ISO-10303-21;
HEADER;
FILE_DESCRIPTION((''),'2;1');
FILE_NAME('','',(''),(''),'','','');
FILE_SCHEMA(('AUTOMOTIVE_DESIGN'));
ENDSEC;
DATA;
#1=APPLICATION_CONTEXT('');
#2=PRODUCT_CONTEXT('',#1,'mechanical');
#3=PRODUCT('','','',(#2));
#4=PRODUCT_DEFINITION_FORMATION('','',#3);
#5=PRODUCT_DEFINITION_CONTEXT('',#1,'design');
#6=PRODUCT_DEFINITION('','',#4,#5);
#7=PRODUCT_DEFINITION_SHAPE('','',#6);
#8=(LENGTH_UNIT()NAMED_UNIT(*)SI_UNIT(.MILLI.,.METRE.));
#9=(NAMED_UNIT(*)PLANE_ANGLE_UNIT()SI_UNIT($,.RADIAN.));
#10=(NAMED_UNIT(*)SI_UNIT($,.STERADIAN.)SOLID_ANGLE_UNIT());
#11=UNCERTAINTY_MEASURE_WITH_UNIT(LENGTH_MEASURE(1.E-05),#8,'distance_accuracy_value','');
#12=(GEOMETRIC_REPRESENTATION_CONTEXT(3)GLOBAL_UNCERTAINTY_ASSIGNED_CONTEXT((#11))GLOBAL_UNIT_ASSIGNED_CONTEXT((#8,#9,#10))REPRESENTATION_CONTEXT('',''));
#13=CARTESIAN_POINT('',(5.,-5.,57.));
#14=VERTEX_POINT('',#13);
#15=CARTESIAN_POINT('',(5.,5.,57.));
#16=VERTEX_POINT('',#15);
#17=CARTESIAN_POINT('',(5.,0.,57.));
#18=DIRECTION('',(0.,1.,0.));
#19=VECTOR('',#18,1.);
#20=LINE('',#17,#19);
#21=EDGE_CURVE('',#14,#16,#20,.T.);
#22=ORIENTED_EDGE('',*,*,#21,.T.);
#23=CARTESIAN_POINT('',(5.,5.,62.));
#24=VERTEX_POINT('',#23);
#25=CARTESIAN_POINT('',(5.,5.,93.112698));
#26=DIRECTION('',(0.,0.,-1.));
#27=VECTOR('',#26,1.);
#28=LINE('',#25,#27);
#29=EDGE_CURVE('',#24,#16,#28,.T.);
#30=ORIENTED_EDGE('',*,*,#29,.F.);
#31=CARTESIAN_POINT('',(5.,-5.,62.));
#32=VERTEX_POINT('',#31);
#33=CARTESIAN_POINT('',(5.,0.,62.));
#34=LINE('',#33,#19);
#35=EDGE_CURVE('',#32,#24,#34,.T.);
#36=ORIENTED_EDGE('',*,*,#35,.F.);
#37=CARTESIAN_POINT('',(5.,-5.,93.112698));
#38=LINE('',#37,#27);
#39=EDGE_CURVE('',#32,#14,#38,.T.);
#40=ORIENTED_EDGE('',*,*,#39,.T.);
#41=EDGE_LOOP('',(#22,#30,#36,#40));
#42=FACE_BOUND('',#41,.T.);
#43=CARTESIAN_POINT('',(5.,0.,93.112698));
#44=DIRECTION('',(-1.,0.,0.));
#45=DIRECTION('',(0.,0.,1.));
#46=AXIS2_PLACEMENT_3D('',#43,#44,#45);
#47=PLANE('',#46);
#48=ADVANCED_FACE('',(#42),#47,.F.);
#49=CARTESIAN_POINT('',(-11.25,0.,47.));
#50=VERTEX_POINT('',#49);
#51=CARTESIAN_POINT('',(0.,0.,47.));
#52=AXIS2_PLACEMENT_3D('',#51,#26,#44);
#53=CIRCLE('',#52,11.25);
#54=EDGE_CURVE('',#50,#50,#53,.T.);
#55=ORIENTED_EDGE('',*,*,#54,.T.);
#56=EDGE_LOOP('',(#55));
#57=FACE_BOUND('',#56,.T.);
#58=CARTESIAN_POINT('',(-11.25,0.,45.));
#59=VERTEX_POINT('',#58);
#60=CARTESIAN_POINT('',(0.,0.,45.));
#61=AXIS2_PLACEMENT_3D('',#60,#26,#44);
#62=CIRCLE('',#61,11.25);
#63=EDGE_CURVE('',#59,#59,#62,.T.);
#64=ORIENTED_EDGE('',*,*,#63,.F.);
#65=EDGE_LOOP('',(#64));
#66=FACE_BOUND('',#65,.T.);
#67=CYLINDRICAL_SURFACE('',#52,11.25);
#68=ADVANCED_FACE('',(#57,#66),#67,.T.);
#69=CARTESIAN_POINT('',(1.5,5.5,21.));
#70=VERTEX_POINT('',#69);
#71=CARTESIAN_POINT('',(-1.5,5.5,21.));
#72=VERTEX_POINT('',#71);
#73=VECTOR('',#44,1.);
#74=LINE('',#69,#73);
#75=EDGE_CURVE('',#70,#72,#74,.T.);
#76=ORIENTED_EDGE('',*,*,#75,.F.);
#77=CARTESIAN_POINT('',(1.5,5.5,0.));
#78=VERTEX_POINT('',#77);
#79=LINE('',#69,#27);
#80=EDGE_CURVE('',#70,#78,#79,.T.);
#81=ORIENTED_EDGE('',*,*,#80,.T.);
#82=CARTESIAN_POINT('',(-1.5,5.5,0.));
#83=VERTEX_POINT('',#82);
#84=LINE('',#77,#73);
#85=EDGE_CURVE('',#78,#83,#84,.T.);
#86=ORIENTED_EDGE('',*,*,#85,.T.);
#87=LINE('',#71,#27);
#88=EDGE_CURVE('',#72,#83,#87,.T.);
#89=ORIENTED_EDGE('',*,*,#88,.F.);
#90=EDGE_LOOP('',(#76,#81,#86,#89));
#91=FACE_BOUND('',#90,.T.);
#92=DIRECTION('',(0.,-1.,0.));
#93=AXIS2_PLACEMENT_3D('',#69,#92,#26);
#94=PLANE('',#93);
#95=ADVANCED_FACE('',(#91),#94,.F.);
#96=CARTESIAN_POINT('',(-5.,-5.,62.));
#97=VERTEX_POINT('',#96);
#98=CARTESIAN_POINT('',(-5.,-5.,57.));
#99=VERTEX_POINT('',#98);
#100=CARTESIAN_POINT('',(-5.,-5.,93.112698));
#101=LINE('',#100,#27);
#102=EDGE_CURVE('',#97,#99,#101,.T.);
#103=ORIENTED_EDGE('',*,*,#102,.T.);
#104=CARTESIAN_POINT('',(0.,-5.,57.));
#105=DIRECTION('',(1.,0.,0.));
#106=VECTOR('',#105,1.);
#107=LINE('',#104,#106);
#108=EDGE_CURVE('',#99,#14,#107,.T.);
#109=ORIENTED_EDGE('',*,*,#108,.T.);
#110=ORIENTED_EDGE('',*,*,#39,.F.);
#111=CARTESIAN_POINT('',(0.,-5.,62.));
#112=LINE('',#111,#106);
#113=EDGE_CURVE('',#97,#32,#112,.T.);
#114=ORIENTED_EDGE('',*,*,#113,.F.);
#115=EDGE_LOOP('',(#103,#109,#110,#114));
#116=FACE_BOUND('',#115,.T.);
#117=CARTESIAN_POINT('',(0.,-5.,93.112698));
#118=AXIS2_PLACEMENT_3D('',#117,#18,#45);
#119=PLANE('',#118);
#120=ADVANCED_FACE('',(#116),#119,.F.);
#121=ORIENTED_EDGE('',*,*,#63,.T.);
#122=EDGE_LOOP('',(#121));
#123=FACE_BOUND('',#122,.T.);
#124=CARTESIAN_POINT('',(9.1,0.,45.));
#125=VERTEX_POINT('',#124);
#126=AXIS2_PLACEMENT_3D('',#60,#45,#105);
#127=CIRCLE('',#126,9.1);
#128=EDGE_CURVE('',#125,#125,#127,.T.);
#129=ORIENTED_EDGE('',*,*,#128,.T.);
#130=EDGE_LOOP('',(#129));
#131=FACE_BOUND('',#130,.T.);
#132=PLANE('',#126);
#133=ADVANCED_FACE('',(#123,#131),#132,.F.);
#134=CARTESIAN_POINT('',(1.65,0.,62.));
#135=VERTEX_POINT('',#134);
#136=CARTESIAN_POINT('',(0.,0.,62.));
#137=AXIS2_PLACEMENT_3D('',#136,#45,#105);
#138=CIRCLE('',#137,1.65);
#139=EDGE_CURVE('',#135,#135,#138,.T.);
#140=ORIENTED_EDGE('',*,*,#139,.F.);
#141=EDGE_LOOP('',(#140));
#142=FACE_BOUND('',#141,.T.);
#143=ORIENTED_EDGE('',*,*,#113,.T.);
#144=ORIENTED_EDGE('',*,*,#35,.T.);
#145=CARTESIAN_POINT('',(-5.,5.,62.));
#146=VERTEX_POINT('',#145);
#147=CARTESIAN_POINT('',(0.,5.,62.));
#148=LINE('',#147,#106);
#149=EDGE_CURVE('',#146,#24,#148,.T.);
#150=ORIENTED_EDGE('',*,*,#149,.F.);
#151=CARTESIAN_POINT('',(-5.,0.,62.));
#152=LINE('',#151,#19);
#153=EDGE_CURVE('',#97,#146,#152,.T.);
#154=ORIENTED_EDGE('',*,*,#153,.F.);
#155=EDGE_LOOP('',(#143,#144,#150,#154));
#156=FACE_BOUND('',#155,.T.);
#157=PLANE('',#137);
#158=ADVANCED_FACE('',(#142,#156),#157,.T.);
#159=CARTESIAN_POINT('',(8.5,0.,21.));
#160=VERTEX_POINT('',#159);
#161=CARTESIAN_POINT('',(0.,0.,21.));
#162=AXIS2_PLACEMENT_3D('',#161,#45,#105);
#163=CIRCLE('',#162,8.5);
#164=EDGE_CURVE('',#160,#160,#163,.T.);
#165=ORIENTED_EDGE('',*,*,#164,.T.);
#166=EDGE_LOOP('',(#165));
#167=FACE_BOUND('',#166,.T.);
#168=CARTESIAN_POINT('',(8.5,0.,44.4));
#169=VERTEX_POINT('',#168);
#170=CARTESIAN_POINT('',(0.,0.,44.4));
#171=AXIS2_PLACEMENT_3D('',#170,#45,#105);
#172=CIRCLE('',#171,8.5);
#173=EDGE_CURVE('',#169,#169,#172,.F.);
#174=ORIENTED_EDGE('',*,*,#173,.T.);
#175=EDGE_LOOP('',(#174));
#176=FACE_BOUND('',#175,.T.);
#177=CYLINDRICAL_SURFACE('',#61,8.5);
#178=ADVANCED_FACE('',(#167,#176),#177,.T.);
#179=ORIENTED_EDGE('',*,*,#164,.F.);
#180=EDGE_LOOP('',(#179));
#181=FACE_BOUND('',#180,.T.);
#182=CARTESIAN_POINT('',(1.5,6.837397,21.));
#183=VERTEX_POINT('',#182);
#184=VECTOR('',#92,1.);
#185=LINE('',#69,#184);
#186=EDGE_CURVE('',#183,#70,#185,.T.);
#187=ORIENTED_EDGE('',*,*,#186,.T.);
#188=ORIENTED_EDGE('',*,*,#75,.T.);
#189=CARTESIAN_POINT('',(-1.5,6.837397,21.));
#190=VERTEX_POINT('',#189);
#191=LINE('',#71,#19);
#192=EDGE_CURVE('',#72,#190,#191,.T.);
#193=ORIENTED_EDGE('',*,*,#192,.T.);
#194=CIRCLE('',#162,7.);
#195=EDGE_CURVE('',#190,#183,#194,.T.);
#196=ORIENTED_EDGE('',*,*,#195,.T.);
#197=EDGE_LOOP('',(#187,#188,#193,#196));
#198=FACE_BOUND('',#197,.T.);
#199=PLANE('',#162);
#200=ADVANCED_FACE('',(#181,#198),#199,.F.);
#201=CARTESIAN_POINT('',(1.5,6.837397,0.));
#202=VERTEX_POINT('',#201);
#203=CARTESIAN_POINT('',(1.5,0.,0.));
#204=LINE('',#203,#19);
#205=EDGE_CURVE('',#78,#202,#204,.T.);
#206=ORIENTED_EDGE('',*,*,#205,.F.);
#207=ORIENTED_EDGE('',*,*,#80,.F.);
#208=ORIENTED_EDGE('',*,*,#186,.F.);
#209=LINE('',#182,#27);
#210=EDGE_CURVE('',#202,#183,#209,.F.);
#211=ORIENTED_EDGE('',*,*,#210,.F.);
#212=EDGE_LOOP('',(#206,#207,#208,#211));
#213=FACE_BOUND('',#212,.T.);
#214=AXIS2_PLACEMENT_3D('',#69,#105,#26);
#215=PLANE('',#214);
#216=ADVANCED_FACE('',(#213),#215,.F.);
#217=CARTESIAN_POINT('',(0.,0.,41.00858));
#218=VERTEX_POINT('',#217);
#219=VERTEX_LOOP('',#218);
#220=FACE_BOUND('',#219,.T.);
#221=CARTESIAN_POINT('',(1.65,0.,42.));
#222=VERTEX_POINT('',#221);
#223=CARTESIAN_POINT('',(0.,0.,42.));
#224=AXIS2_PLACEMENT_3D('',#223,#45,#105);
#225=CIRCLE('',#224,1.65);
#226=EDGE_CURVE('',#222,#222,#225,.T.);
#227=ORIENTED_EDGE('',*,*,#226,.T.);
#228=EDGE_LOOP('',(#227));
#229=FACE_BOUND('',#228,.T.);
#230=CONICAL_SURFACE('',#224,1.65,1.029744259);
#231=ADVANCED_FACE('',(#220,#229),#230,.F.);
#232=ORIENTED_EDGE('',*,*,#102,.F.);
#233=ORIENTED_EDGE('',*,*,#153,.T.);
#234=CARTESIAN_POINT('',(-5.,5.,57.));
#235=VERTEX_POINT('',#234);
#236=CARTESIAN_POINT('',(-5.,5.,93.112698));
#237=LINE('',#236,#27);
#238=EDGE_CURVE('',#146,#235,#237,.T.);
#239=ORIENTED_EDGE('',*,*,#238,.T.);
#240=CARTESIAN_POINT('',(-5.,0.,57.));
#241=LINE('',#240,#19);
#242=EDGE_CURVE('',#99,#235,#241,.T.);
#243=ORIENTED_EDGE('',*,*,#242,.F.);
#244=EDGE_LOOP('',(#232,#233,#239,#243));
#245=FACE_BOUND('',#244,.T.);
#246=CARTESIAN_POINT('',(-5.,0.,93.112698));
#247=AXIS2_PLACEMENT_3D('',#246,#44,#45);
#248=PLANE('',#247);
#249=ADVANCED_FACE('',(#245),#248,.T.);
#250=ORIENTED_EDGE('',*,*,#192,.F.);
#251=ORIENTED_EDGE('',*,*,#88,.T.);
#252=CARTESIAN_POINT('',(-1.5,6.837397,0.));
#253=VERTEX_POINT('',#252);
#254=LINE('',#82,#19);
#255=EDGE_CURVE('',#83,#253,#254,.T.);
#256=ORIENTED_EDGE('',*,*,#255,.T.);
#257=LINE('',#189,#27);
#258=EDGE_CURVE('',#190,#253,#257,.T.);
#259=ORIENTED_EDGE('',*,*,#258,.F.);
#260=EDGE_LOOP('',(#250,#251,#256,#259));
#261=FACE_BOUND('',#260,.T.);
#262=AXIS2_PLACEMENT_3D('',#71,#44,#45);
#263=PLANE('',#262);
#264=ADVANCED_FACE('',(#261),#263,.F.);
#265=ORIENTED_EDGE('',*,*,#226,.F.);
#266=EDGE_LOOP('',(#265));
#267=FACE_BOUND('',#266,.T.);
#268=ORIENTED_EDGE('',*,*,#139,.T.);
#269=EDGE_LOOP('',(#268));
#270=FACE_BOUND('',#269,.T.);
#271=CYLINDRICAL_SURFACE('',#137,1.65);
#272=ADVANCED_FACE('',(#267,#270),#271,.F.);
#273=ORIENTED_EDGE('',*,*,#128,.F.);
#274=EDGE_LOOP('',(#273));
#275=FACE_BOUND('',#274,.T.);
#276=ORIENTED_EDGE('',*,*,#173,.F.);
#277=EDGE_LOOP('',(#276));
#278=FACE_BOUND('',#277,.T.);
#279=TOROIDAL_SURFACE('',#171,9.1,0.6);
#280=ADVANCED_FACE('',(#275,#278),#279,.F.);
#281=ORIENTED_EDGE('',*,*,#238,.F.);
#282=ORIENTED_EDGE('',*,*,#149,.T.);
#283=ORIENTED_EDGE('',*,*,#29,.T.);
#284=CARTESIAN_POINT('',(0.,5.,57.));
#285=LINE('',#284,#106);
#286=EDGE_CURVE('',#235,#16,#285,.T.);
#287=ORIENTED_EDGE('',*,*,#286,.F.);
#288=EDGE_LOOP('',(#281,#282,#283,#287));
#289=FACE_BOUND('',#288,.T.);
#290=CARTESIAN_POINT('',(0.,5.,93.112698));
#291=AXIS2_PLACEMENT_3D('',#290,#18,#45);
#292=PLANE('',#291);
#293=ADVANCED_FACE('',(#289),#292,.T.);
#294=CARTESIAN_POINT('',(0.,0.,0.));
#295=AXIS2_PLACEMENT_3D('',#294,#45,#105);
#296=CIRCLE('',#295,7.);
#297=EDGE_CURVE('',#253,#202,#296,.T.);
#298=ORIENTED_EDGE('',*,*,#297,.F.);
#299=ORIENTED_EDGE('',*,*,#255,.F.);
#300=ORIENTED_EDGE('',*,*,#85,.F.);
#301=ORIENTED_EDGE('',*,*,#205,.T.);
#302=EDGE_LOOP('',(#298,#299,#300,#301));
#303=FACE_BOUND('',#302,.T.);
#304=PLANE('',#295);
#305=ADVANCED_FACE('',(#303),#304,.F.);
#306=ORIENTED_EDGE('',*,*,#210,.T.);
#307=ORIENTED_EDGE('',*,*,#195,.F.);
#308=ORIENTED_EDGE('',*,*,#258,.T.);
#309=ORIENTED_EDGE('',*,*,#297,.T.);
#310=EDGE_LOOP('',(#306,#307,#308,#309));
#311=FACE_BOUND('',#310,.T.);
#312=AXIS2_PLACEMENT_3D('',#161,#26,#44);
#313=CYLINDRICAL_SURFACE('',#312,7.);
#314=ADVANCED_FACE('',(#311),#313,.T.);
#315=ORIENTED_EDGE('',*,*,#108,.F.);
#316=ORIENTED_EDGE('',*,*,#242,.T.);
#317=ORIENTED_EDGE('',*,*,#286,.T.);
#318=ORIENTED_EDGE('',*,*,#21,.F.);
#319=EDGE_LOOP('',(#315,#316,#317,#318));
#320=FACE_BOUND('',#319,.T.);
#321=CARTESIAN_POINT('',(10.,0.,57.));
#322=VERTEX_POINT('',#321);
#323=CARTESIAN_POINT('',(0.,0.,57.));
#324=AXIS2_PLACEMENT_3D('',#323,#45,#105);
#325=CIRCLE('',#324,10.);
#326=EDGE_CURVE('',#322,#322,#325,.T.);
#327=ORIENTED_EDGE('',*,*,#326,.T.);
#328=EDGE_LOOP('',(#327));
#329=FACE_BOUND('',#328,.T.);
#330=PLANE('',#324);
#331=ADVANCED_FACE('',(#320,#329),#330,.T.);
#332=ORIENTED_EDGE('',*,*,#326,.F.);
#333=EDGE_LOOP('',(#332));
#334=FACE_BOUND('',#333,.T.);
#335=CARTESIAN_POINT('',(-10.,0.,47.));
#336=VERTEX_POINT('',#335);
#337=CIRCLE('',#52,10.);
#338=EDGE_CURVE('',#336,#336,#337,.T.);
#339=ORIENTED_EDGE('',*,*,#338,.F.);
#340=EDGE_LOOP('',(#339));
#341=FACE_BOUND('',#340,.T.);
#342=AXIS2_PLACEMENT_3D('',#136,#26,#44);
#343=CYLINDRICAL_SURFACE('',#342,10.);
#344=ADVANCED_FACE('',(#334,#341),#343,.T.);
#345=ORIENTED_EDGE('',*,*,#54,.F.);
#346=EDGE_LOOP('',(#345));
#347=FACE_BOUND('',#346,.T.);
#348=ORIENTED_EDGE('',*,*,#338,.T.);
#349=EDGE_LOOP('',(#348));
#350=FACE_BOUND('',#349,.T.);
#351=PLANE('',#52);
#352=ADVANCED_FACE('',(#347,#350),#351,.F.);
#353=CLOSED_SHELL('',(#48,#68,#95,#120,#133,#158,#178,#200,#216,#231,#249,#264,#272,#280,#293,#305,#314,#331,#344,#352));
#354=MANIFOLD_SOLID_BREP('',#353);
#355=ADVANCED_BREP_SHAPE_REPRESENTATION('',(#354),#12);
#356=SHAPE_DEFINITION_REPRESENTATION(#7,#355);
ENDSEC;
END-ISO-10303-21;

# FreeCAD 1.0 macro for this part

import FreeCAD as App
import Part
import Sketcher

V = App.Vector


def edges_at(feature, points):
    """Names of the edges that pass closest to the given points."""
    edges = feature.Shape.Edges
    near = lambda p: min(range(len(edges)), key=lambda i: edges[i].distToShape(Part.Vertex(*p))[0])
    return sorted({f"Edge{near(p) + 1}" for p in points})


def add_polygon(sketch, points):
    """Adds a closed chain of lines whose ends are joined by coincident constraints."""
    first, n = sketch.GeometryCount, len(points)
    for a, b in zip(points, points[1:] + points[:1]):
        sketch.addGeometry(Part.LineSegment(App.Vector(*a, 0), App.Vector(*b, 0)), False)
    for i in range(n):
        sketch.addConstraint(Sketcher.Constraint("Coincident", first + i, 2, first + (i + 1) % n, 1))

doc = App.newDocument("Part")
body = doc.addObject("PartDesign::Body", "Body")

# Sketch on XY plane
sketch1 = body.newObject("Sketcher::SketchObject", "Sketch")
sketch1.AttachmentSupport = (doc.getObject("XY_Plane"), [""])
sketch1.MapMode = "FlatFace"
sketch1.addGeometry(Part.Circle(V(0, 0, 0), V(0, 0, 1), 7), False)
sketch1.addConstraint([
    Sketcher.Constraint("Coincident", 0, 3, -1, 1),
    Sketcher.Constraint("Diameter", 0, 14.0),
])
pad1 = body.newObject("PartDesign::Pad", "Pad")
pad1.Profile = sketch1
pad1.Length = 21

# Sketch on XY plane
sketch2 = body.newObject("Sketcher::SketchObject", "Sketch001")
sketch2.AttachmentSupport = (doc.getObject("XY_Plane"), [""])
sketch2.MapMode = "FlatFace"
add_polygon(sketch2, [(1.5, 8.5), (1.5, 5.5), (-1.5, 5.5), (-1.5, 8.5)])  # lines 0-3
sketch2.addConstraint([
    Sketcher.Constraint("Vertical", 0),
    Sketcher.Constraint("Horizontal", 1),
    Sketcher.Constraint("Vertical", 2),
    Sketcher.Constraint("Horizontal", 3),
    Sketcher.Constraint("Equal", 3, 0),
    Sketcher.Constraint("DistanceX", 1, 2, 1, 1, 3.0),
    Sketcher.Constraint("DistanceX", -1, 1, 0, 2, 1.5),
    Sketcher.Constraint("DistanceY", -1, 1, 0, 2, 5.5),
])
pocket1 = body.newObject("PartDesign::Pocket", "Pocket")
pocket1.Profile = sketch2
pocket1.Length = 21
pocket1.Reversed = True

# Sketch on XY plane
sketch3 = body.newObject("Sketcher::SketchObject", "Sketch002")
sketch3.AttachmentSupport = (doc.getObject("XY_Plane"), [""])
sketch3.MapMode = "FlatFace"
sketch3.AttachmentOffset = App.Placement(V(0, 0, 21), App.Rotation())
sketch3.addGeometry(Part.Circle(V(0, 0, 0), V(0, 0, 1), 8.5), False)
sketch3.addConstraint([
    Sketcher.Constraint("Coincident", 0, 3, -1, 1),
    Sketcher.Constraint("Diameter", 0, 17.0),
])
pad2 = body.newObject("PartDesign::Pad", "Pad001")
pad2.Profile = sketch3
pad2.Length = 24

# Sketch on XY plane
sketch4 = body.newObject("Sketcher::SketchObject", "Sketch003")
sketch4.AttachmentSupport = (doc.getObject("XY_Plane"), [""])
sketch4.MapMode = "FlatFace"
sketch4.AttachmentOffset = App.Placement(V(0, 0, 45), App.Rotation())
sketch4.addGeometry(Part.Circle(V(0, 0, 0), V(0, 0, 1), 10), False)
sketch4.addConstraint([
    Sketcher.Constraint("Coincident", 0, 3, -1, 1),
    Sketcher.Constraint("Diameter", 0, 20.0),
])
pad3 = body.newObject("PartDesign::Pad", "Pad002")
pad3.Profile = sketch4
pad3.Length = 17
doc.recompute()

fillet = body.newObject("PartDesign::Fillet", "Fillet")
fillet.Base = (pad3, edges_at(pad3, [(-8.5, 0, 45)]))
fillet.Radius = 0.6

# Sketch on XY plane
sketch5 = body.newObject("Sketcher::SketchObject", "Sketch004")
sketch5.AttachmentSupport = (doc.getObject("XY_Plane"), [""])
sketch5.MapMode = "FlatFace"
sketch5.AttachmentOffset = App.Placement(V(0, 0, 45), App.Rotation())
sketch5.addGeometry(Part.Circle(V(0, 0, 0), V(0, 0, 1), 11.25), False)
sketch5.addConstraint([
    Sketcher.Constraint("Coincident", 0, 3, -1, 1),
    Sketcher.Constraint("Diameter", 0, 22.5),
])
pad4 = body.newObject("PartDesign::Pad", "Pad003")
pad4.Profile = sketch5
pad4.Length = 2

# Sketch on XY plane
sketch6 = body.newObject("Sketcher::SketchObject", "Sketch005")
sketch6.AttachmentSupport = (doc.getObject("XY_Plane"), [""])
sketch6.MapMode = "FlatFace"
sketch6.AttachmentOffset = App.Placement(V(0, 0, 57), App.Rotation())
sketch6.addGeometry(Part.Circle(V(0, 0, 0), V(0, 0, 1), 11), False)  # 0
add_polygon(sketch6, [(5, -5), (-5, -5), (-5, 5), (5, 5)])  # lines 1-4
sketch6.addConstraint([
    Sketcher.Constraint("Horizontal", 1),
    Sketcher.Constraint("Vertical", 2),
    Sketcher.Constraint("Horizontal", 3),
    Sketcher.Constraint("Vertical", 4),
    Sketcher.Constraint("Coincident", 0, 3, -1, 1),
    Sketcher.Constraint("Symmetric", 1, 2, 3, 2, -1, 1),
    Sketcher.Constraint("Equal", 3, 2),
    Sketcher.Constraint("Diameter", 0, 22.0),
    Sketcher.Constraint("DistanceX", 1, 2, 1, 1, 10.0),
])
pocket2 = body.newObject("PartDesign::Pocket", "Pocket001")
pocket2.Profile = sketch6
pocket2.Length = 5
pocket2.Reversed = True

# Sketch on XY plane
sketch7 = body.newObject("Sketcher::SketchObject", "Sketch006")
sketch7.AttachmentSupport = (doc.getObject("XY_Plane"), [""])
sketch7.MapMode = "FlatFace"
sketch7.AttachmentOffset = App.Placement(V(0, 0, 62), App.Rotation())
sketch7.addGeometry(Part.Circle(V(0, 0, 0), V(0, 0, 1), 1.65), False)
sketch7.addConstraint([
    Sketcher.Constraint("Coincident", 0, 3, -1, 1),
    Sketcher.Constraint("Diameter", 0, 3.3),
])
doc.recompute()
hole = body.newObject("PartDesign::Hole", "Hole")
hole.Profile = sketch7
hole.ThreadType = "None"
hole.Diameter = 3.3
hole.DepthType = "Dimension"
hole.Depth = 20
hole.DrillPoint = "Angled"
hole.DrillPointAngle = 118

doc.recompute()
